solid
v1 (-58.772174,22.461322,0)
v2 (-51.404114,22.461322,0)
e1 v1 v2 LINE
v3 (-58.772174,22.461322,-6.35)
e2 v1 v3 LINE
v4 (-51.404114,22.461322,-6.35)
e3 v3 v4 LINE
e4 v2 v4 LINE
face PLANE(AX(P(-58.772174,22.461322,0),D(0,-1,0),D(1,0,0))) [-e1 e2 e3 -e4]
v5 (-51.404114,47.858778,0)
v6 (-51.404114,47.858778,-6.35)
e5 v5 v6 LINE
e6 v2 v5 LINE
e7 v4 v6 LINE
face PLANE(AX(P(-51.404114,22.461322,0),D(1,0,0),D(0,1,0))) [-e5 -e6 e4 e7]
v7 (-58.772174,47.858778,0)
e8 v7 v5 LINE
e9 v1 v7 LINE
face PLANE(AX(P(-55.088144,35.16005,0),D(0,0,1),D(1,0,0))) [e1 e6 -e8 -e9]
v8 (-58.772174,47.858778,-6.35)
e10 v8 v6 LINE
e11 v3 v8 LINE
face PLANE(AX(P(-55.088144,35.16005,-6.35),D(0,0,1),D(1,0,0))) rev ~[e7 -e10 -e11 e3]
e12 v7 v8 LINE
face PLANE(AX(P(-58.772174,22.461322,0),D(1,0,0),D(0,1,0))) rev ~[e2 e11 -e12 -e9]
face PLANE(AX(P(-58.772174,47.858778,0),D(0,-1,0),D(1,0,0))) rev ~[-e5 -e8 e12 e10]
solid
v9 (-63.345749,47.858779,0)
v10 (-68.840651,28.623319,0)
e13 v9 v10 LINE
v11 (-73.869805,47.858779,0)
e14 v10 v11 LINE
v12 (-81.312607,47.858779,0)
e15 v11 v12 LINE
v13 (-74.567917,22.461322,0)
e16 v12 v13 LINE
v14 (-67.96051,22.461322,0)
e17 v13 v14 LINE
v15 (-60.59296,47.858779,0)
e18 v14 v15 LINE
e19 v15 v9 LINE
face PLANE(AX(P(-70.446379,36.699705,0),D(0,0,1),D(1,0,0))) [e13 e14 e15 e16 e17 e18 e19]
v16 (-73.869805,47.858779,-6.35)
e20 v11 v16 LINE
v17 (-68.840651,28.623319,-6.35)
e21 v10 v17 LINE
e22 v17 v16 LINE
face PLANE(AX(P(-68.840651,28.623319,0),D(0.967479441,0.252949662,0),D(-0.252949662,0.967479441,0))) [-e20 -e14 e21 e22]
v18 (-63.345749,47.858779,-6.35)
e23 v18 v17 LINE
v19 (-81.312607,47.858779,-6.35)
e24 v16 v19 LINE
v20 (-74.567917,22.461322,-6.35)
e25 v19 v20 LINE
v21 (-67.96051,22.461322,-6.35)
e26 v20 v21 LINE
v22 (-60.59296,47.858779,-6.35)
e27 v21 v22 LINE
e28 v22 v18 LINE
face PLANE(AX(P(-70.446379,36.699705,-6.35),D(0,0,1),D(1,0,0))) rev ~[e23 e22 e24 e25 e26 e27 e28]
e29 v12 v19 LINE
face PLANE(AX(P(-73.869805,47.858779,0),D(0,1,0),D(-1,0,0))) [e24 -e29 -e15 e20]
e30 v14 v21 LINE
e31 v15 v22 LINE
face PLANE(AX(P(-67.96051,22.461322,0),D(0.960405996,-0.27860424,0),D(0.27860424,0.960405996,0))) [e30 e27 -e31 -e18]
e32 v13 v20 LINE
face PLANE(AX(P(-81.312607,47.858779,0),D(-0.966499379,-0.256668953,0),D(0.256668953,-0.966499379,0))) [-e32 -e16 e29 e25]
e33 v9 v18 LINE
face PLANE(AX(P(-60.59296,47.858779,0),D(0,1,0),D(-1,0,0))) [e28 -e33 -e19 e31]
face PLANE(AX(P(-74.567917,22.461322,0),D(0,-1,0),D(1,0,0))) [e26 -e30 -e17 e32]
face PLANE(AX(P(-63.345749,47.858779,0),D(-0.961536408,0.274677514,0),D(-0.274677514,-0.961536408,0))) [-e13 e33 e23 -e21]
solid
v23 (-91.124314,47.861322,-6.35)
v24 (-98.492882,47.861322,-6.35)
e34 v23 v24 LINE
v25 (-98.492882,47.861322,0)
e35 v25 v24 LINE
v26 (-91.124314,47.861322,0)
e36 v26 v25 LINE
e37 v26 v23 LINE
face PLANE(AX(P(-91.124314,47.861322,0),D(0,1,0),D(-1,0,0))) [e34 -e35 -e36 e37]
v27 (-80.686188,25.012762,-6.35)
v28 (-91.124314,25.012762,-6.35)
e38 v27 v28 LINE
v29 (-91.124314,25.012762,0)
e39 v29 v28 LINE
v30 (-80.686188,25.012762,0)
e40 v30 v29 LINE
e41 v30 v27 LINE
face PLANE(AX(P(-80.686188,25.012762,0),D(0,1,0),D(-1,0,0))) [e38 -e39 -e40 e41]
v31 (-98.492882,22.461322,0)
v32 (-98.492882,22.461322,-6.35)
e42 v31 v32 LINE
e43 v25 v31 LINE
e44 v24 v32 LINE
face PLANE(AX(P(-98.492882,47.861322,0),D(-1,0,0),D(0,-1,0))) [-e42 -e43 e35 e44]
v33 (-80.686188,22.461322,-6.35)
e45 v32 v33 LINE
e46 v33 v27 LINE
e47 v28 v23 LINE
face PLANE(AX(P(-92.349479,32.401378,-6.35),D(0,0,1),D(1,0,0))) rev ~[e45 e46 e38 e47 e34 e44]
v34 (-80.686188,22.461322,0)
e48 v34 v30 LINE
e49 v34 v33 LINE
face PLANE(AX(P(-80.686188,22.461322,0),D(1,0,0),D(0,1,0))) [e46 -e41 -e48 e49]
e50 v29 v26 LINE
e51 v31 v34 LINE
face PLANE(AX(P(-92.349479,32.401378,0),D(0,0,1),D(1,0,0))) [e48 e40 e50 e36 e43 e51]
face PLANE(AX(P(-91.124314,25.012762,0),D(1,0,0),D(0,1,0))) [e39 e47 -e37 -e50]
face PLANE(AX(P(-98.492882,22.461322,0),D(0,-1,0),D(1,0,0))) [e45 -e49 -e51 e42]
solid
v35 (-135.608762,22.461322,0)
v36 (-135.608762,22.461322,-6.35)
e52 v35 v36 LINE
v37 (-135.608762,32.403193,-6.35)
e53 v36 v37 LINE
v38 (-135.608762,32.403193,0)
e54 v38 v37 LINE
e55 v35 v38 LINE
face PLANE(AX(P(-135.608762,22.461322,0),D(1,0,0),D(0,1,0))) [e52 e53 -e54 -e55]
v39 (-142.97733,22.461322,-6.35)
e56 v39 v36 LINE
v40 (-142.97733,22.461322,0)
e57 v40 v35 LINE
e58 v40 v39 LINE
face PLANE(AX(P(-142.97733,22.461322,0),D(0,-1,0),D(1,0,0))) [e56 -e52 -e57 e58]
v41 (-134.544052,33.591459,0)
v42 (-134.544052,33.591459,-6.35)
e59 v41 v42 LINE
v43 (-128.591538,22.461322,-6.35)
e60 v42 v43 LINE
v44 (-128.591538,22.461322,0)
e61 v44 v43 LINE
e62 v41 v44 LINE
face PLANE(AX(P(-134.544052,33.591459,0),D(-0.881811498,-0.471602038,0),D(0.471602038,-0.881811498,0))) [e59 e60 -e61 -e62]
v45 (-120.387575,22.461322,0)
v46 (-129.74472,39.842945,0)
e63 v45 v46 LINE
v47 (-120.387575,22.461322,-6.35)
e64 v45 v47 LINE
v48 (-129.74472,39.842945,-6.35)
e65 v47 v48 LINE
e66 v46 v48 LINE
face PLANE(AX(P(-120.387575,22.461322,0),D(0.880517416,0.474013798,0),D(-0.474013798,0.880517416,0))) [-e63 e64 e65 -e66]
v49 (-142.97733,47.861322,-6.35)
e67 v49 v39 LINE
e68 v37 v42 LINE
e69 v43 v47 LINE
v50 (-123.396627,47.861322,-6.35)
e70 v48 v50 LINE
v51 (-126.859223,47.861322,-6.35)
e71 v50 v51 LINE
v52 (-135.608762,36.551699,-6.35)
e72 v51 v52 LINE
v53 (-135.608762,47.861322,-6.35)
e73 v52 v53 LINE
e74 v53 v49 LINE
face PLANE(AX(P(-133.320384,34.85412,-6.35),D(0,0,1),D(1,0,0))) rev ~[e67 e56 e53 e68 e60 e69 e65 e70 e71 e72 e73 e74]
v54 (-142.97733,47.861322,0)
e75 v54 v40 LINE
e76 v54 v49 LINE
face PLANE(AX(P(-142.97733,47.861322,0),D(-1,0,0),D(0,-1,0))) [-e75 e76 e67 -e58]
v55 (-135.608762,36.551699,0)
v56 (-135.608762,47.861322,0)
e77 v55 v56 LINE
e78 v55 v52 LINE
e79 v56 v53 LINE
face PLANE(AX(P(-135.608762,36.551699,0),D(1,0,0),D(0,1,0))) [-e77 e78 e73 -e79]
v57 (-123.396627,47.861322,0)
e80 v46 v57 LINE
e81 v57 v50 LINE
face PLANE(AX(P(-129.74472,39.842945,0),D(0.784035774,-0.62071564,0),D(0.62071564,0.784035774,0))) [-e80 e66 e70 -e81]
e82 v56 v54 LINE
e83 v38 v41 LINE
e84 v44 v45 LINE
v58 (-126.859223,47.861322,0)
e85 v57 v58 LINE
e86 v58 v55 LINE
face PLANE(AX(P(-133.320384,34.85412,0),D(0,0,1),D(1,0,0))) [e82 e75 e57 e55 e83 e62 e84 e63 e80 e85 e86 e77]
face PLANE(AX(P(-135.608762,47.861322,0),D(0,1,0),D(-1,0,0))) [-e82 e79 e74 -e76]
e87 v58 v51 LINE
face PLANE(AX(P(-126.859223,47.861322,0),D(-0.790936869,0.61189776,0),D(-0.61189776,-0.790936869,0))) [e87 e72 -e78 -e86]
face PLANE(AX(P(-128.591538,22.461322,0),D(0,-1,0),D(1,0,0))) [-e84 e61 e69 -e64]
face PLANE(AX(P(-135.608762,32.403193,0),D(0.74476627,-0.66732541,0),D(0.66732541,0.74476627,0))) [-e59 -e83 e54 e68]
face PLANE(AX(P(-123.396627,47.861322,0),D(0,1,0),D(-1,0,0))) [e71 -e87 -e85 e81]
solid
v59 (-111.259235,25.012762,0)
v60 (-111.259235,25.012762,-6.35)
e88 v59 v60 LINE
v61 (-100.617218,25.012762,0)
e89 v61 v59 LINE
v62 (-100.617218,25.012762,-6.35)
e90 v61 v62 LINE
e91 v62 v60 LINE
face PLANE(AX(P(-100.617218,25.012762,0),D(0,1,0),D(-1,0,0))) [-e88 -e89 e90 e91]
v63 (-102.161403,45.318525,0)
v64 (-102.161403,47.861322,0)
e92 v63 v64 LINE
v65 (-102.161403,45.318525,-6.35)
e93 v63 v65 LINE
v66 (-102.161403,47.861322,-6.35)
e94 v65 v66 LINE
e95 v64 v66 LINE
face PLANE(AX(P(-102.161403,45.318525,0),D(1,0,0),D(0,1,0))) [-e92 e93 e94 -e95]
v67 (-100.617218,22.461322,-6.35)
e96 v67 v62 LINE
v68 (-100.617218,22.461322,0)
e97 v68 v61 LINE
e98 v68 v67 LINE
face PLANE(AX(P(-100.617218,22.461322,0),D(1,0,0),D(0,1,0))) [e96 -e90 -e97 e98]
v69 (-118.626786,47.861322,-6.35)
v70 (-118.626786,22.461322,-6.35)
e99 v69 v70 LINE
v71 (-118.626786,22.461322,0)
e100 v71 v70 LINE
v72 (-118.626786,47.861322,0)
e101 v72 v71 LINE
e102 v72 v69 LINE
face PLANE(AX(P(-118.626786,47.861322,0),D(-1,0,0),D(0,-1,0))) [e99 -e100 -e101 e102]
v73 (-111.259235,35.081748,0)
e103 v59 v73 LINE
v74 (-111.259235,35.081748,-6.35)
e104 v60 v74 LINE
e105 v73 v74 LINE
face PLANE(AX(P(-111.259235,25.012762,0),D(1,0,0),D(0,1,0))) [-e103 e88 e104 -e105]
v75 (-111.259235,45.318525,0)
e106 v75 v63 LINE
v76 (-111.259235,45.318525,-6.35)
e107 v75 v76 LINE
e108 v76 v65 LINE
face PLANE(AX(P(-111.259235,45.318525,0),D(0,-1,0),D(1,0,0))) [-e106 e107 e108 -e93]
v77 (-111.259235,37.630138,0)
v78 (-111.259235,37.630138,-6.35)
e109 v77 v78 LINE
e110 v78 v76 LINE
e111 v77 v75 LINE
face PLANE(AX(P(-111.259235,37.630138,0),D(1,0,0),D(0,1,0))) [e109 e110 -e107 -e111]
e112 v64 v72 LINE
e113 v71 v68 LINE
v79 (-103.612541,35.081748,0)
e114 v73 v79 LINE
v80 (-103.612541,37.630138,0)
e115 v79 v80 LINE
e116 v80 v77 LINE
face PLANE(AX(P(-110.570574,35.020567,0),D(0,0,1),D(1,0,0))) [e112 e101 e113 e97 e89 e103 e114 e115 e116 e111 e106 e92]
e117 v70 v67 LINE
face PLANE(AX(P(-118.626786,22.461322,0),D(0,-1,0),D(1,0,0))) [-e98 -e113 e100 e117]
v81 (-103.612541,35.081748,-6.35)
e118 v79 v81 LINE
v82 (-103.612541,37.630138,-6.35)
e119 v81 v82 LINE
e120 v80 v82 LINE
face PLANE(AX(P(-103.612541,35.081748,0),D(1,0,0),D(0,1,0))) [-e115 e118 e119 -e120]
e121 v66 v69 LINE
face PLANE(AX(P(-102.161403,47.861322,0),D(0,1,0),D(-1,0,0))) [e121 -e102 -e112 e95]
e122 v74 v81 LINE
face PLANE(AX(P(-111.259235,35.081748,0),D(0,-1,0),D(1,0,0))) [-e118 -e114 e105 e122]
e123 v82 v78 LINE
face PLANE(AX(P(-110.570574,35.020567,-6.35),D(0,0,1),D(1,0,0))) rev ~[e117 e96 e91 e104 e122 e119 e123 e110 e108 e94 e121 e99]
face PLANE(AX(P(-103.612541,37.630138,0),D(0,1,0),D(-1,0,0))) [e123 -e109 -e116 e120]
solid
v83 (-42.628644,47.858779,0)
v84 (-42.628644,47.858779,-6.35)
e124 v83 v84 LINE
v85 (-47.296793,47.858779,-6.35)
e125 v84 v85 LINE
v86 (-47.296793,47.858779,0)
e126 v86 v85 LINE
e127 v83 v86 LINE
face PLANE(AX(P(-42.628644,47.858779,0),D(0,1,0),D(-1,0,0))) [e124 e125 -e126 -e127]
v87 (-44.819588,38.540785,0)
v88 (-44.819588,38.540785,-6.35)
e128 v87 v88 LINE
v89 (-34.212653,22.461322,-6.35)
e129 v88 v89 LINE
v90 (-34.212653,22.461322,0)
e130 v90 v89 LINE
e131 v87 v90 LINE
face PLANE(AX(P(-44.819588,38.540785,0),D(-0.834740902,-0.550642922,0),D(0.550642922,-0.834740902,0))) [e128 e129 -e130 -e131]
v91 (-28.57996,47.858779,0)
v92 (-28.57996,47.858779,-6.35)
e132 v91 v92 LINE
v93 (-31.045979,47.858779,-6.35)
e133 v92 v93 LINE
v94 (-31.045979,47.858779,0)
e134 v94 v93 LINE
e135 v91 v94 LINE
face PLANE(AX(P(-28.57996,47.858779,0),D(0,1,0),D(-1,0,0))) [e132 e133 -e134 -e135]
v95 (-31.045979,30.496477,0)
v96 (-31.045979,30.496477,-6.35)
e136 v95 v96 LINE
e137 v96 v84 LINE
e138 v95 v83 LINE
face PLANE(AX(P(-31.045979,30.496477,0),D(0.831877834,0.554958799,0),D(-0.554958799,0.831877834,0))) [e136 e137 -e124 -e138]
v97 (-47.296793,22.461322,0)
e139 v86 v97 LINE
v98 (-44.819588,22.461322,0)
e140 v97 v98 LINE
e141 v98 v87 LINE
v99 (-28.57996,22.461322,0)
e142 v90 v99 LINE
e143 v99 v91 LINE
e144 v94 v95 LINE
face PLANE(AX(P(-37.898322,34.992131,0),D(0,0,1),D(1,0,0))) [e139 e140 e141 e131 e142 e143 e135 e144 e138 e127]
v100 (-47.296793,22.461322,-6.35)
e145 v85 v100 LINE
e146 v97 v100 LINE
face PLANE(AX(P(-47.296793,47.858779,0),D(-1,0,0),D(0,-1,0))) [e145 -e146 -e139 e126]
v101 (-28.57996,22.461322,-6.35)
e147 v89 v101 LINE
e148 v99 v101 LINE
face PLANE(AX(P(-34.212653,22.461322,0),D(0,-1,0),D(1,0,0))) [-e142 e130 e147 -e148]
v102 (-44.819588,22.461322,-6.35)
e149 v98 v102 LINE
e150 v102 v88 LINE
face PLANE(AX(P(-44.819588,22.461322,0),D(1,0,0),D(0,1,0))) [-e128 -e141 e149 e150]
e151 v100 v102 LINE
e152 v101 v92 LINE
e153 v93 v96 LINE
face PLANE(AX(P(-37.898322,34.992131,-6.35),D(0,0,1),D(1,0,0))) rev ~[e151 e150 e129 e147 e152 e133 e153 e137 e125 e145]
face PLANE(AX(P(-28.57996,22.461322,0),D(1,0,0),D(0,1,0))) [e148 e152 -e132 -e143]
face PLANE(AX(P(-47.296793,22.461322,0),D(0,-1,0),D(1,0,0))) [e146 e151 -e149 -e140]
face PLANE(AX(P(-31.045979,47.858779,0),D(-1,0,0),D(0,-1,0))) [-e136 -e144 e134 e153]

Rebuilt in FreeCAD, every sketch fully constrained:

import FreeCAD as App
import Part
import Sketcher

V = App.Vector
Q = App.Units.Quantity

doc = App.newDocument("Part")
body = doc.addObject("PartDesign::Body", "Body")
body.AllowCompound = True

# Sketch on XY plane
sketch1 = body.newObject("Sketcher::SketchObject", "Sketch")
sketch1.AttachmentSupport = (doc.getObject("XY_Plane"), [""])
sketch1.MapMode = "FlatFace"
sketch1.addGeometry([
    Part.LineSegment(V(-135.6, 47.9, 0), V(-143, 47.9, 0)),  # 0
    Part.LineSegment(V(-143, 47.9, 0), V(-143, 22.5, 0)),  # 1
    Part.LineSegment(V(-143, 22.5, 0), V(-135.6, 22.5, 0)),  # 2
    Part.LineSegment(V(-135.6, 22.5, 0), V(-135.6, 32.4, 0)),  # 3
    Part.LineSegment(V(-135.6, 32.4, 0), V(-134.5, 33.6, 0)),  # 4
    Part.LineSegment(V(-134.5, 33.6, 0), V(-128.6, 22.5, 0)),  # 5
    Part.LineSegment(V(-128.6, 22.5, 0), V(-120.4, 22.5, 0)),  # 6
    Part.LineSegment(V(-120.4, 22.5, 0), V(-129.7, 39.8, 0)),  # 7
    Part.LineSegment(V(-129.7, 39.8, 0), V(-123.4, 47.9, 0)),  # 8
    Part.LineSegment(V(-123.4, 47.9, 0), V(-126.9, 47.9, 0)),  # 9
    Part.LineSegment(V(-126.9, 47.9, 0), V(-135.6, 36.6, 0)),  # 10
    Part.LineSegment(V(-135.6, 36.6, 0), V(-135.6, 47.9, 0)),  # 11
    Part.LineSegment(V(-102.2, 47.9, 0), V(-118.6, 47.9, 0)),  # 12
    Part.LineSegment(V(-118.6, 47.9, 0), V(-118.6, 22.5, 0)),  # 13
    Part.LineSegment(V(-118.6, 22.5, 0), V(-100.6, 22.5, 0)),  # 14
    Part.LineSegment(V(-100.6, 22.5, 0), V(-100.6, 25, 0)),  # 15
    Part.LineSegment(V(-100.6, 25, 0), V(-111.3, 25, 0)),  # 16
    Part.LineSegment(V(-111.3, 25, 0), V(-111.3, 35.1, 0)),  # 17
    Part.LineSegment(V(-111.3, 35.1, 0), V(-103.6, 35.1, 0)),  # 18
    Part.LineSegment(V(-103.6, 35.1, 0), V(-103.6, 37.6, 0)),  # 19
    Part.LineSegment(V(-103.6, 37.6, 0), V(-111.3, 37.6, 0)),  # 20
    Part.LineSegment(V(-111.3, 37.6, 0), V(-111.3, 45.3, 0)),  # 21
    Part.LineSegment(V(-111.3, 45.3, 0), V(-102.2, 45.3, 0)),  # 22
    Part.LineSegment(V(-102.2, 45.3, 0), V(-102.2, 47.9, 0)),  # 23
    Part.LineSegment(V(-91.1, 47.9, 0), V(-98.5, 47.9, 0)),  # 24
    Part.LineSegment(V(-98.5, 47.9, 0), V(-98.5, 22.5, 0)),  # 25
    Part.LineSegment(V(-98.5, 22.5, 0), V(-80.7, 22.5, 0)),  # 26
    Part.LineSegment(V(-80.7, 22.5, 0), V(-80.7, 25, 0)),  # 27
    Part.LineSegment(V(-80.7, 25, 0), V(-91.1, 25, 0)),  # 28
    Part.LineSegment(V(-91.1, 25, 0), V(-91.1, 47.9, 0)),  # 29
    Part.LineSegment(V(-58.8, 47.9, 0), V(-58.8, 22.5, 0)),  # 30
    Part.LineSegment(V(-58.8, 22.5, 0), V(-51.4, 22.5, 0)),  # 31
    Part.LineSegment(V(-51.4, 22.5, 0), V(-51.4, 47.9, 0)),  # 32
    Part.LineSegment(V(-51.4, 47.9, 0), V(-58.8, 47.9, 0)),  # 33
    Part.LineSegment(V(-42.6, 47.9, 0), V(-47.3, 47.9, 0)),  # 34
    Part.LineSegment(V(-47.3, 47.9, 0), V(-47.3, 22.5, 0)),  # 35
    Part.LineSegment(V(-47.3, 22.5, 0), V(-44.8, 22.5, 0)),  # 36
    Part.LineSegment(V(-44.8, 22.5, 0), V(-44.8, 38.5, 0)),  # 37
    Part.LineSegment(V(-44.8, 38.5, 0), V(-34.2, 22.5, 0)),  # 38
    Part.LineSegment(V(-34.2, 22.5, 0), V(-28.6, 22.5, 0)),  # 39
    Part.LineSegment(V(-28.6, 22.5, 0), V(-28.6, 47.9, 0)),  # 40
    Part.LineSegment(V(-28.6, 47.9, 0), V(-31, 47.9, 0)),  # 41
    Part.LineSegment(V(-31, 47.9, 0), V(-31, 30.5, 0)),  # 42
    Part.LineSegment(V(-31, 30.5, 0), V(-42.6, 47.9, 0)),  # 43
    Part.LineSegment(V(-73.9, 47.9, 0), V(-81.3, 47.9, 0)),  # 44
    Part.LineSegment(V(-81.3, 47.9, 0), V(-74.6, 22.5, 0)),  # 45
    Part.LineSegment(V(-74.6, 22.5, 0), V(-68, 22.5, 0)),  # 46
    Part.LineSegment(V(-68, 22.5, 0), V(-60.6, 47.9, 0)),  # 47
    Part.LineSegment(V(-60.6, 47.9, 0), V(-63.3, 47.9, 0)),  # 48
    Part.LineSegment(V(-63.3, 47.9, 0), V(-68.8, 28.6, 0)),  # 49
    Part.LineSegment(V(-68.8, 28.6, 0), V(-73.9, 47.9, 0)),  # 50
], False)
sketch1.addConstraint([
    Sketcher.Constraint("Coincident", 0, 2, 1, 1),
    Sketcher.Constraint("Coincident", 1, 2, 2, 1),
    Sketcher.Constraint("Coincident", 2, 2, 3, 1),
    Sketcher.Constraint("Coincident", 3, 2, 4, 1),
    Sketcher.Constraint("Coincident", 4, 2, 5, 1),
    Sketcher.Constraint("Coincident", 5, 2, 6, 1),
    Sketcher.Constraint("Coincident", 6, 2, 7, 1),
    Sketcher.Constraint("Coincident", 7, 2, 8, 1),
    Sketcher.Constraint("Coincident", 8, 2, 9, 1),
    Sketcher.Constraint("Coincident", 9, 2, 10, 1),
    Sketcher.Constraint("Coincident", 10, 2, 11, 1),
    Sketcher.Constraint("Coincident", 11, 2, 0, 1),
    Sketcher.Constraint("Coincident", 12, 2, 13, 1),
    Sketcher.Constraint("Coincident", 13, 2, 14, 1),
    Sketcher.Constraint("Coincident", 14, 2, 15, 1),
    Sketcher.Constraint("Coincident", 15, 2, 16, 1),
    Sketcher.Constraint("Coincident", 16, 2, 17, 1),
    Sketcher.Constraint("Coincident", 17, 2, 18, 1),
    Sketcher.Constraint("Coincident", 18, 2, 19, 1),
    Sketcher.Constraint("Coincident", 19, 2, 20, 1),
    Sketcher.Constraint("Coincident", 20, 2, 21, 1),
    Sketcher.Constraint("Coincident", 21, 2, 22, 1),
    Sketcher.Constraint("Coincident", 22, 2, 23, 1),
    Sketcher.Constraint("Coincident", 23, 2, 12, 1),
    Sketcher.Constraint("Coincident", 24, 2, 25, 1),
    Sketcher.Constraint("Coincident", 25, 2, 26, 1),
    Sketcher.Constraint("Coincident", 26, 2, 27, 1),
    Sketcher.Constraint("Coincident", 27, 2, 28, 1),
    Sketcher.Constraint("Coincident", 28, 2, 29, 1),
    Sketcher.Constraint("Coincident", 29, 2, 24, 1),
    Sketcher.Constraint("Coincident", 30, 2, 31, 1),
    Sketcher.Constraint("Coincident", 31, 2, 32, 1),
    Sketcher.Constraint("Coincident", 32, 2, 33, 1),
    Sketcher.Constraint("Coincident", 33, 2, 30, 1),
    Sketcher.Constraint("Coincident", 34, 2, 35, 1),
    Sketcher.Constraint("Coincident", 35, 2, 36, 1),
    Sketcher.Constraint("Coincident", 36, 2, 37, 1),
    Sketcher.Constraint("Coincident", 37, 2, 38, 1),
    Sketcher.Constraint("Coincident", 38, 2, 39, 1),
    Sketcher.Constraint("Coincident", 39, 2, 40, 1),
    Sketcher.Constraint("Coincident", 40, 2, 41, 1),
    Sketcher.Constraint("Coincident", 41, 2, 42, 1),
    Sketcher.Constraint("Coincident", 42, 2, 43, 1),
    Sketcher.Constraint("Coincident", 43, 2, 34, 1),
    Sketcher.Constraint("Coincident", 44, 2, 45, 1),
    Sketcher.Constraint("Coincident", 45, 2, 46, 1),
    Sketcher.Constraint("Coincident", 46, 2, 47, 1),
    Sketcher.Constraint("Coincident", 47, 2, 48, 1),
    Sketcher.Constraint("Coincident", 48, 2, 49, 1),
    Sketcher.Constraint("Coincident", 49, 2, 50, 1),
    Sketcher.Constraint("Coincident", 50, 2, 44, 1),
    Sketcher.Constraint("Horizontal", 0),
    Sketcher.Constraint("Vertical", 1),
    Sketcher.Constraint("Horizontal", 2),
    Sketcher.Constraint("Vertical", 3),
    Sketcher.Constraint("Horizontal", 6),
    Sketcher.Constraint("Horizontal", 9),
    Sketcher.Constraint("Vertical", 11),
    Sketcher.Constraint("Horizontal", 12),
    Sketcher.Constraint("Vertical", 13),
    Sketcher.Constraint("Horizontal", 14),
    Sketcher.Constraint("Vertical", 15),
    Sketcher.Constraint("Horizontal", 16),
    Sketcher.Constraint("Vertical", 17),
    Sketcher.Constraint("Horizontal", 18),
    Sketcher.Constraint("Vertical", 19),
    Sketcher.Constraint("Horizontal", 20),
    Sketcher.Constraint("Vertical", 21),
    Sketcher.Constraint("Horizontal", 22),
    Sketcher.Constraint("Vertical", 23),
    Sketcher.Constraint("Horizontal", 24),
    Sketcher.Constraint("Vertical", 25),
    Sketcher.Constraint("Horizontal", 26),
    Sketcher.Constraint("Vertical", 27),
    Sketcher.Constraint("Horizontal", 28),
    Sketcher.Constraint("Vertical", 29),
    Sketcher.Constraint("Vertical", 30),
    Sketcher.Constraint("Horizontal", 31),
    Sketcher.Constraint("Vertical", 32),
    Sketcher.Constraint("Horizontal", 33),
    Sketcher.Constraint("Horizontal", 34),
    Sketcher.Constraint("Vertical", 35),
    Sketcher.Constraint("Horizontal", 36),
    Sketcher.Constraint("Vertical", 37),
    Sketcher.Constraint("Horizontal", 39),
    Sketcher.Constraint("Vertical", 40),
    Sketcher.Constraint("Horizontal", 41),
    Sketcher.Constraint("Vertical", 42),
    Sketcher.Constraint("Horizontal", 44),
    Sketcher.Constraint("Horizontal", 46),
    Sketcher.Constraint("Horizontal", 48),
    Sketcher.Constraint("Horizontal", 2, 2, 5, 2),
    Sketcher.Constraint("Horizontal", 0, 2, 8, 2),
    Sketcher.Constraint("Horizontal", 11, 2, 12, 2),
    Sketcher.Constraint("Horizontal", 6, 2, 13, 2),
    Sketcher.Constraint("Horizontal", 23, 2, 24, 2),
    Sketcher.Constraint("Horizontal", 14, 2, 25, 2),
    Sketcher.Constraint("Horizontal", 16, 2, 27, 2),
    Sketcher.Constraint("Horizontal", 26, 2, 30, 2),
    Sketcher.Constraint("Horizontal", 33, 2, 34, 2),
    Sketcher.Constraint("Horizontal", 31, 2, 35, 2),
    Sketcher.Constraint("Horizontal", 36, 2, 38, 2),
    Sketcher.Constraint("Horizontal", 34, 2, 40, 2),
    Sketcher.Constraint("Horizontal", 43, 2, 44, 2),
    Sketcher.Constraint("Horizontal", 39, 2, 45, 2),
    Sketcher.Constraint("Horizontal", 44, 2, 47, 2),
    Sketcher.Constraint("Vertical", 3, 2, 10, 2),
    Sketcher.Constraint("Vertical", 17, 2, 20, 2),
    Sketcher.Constraint("Equal", 2, 24),
    Sketcher.Constraint("DistanceY", 1, 2, 1, 1, Q("1 in")),
    Sketcher.Constraint("DistanceY", 30, 2, 30, 1, Q("0.9998999 in")),
    Sketcher.Constraint("DistanceY", 42, 2, 42, 1, 17.362302),
    Sketcher.Constraint("Distance", 5, 12.621901),
    Sketcher.Constraint("Distance", 47, 26.444501),
    Sketcher.Constraint("DistanceX", 14, 1, 14, 2, 18.009568),
    Sketcher.Constraint("DistanceX", 22, 1, 22, 2, 9.097832),
    Sketcher.Constraint("DistanceX", 31, 1, 31, 2, 7.368059),
    Sketcher.Constraint("DistanceX", 34, 2, 34, 1, 4.668149),
    Sketcher.Constraint("DistanceX", 41, 2, 41, 1, 2.466019),
    Sketcher.Constraint("DistanceX", 48, 2, 48, 1, 2.752789),
    Sketcher.Constraint("DistanceY", 3, 1, 3, 2, 9.941871),
    Sketcher.Constraint("DistanceY", 15, 1, 15, 2, 2.55144),
    Sketcher.Constraint("DistanceY", 19, 1, 19, 2, 2.54839),
    Sketcher.Constraint("DistanceY", -1, 1, 10, 2, 36.551699),
    Sketcher.Constraint("DistanceX", 28, 2, 31, 2, 39.720199),
    Sketcher.Constraint("Distance", 4, 1.595488),
    Sketcher.Constraint("Distance", 10, 14.299021),
    Sketcher.Constraint("Distance", 38, 19.262819),
    Sketcher.Constraint("Distance", 45, 26.277779),
    Sketcher.Constraint("Distance", 49, 20.004921),
    Sketcher.Constraint("DistanceX", 0, 2, 0, 1, 7.368568),
    Sketcher.Constraint("DistanceX", 6, 1, 6, 2, 8.203963),
    Sketcher.Constraint("DistanceX", 9, 2, 9, 1, 3.462596),
    Sketcher.Constraint("DistanceX", 12, 2, 12, 1, 16.465383),
    Sketcher.Constraint("DistanceX", 18, 1, 18, 2, 7.646694),
    Sketcher.Constraint("DistanceX", 26, 1, 26, 2, 17.806694),
    Sketcher.Constraint("DistanceX", 36, 1, 36, 2, 2.477205),
    Sketcher.Constraint("DistanceX", 39, 1, 39, 2, 5.632693),
    Sketcher.Constraint("DistanceX", 44, 2, 44, 1, 7.442802),
    Sketcher.Constraint("DistanceX", 46, 1, 46, 2, 6.607407),
    Sketcher.Constraint("DistanceY", 11, 1, 11, 2, 11.309623),
    Sketcher.Constraint("DistanceY", 17, 1, 17, 2, 10.068986),
    Sketcher.Constraint("DistanceY", 21, 1, 21, 2, 7.688387),
    Sketcher.Constraint("DistanceY", 37, 1, 37, 2, 16.079463),
    Sketcher.Constraint("DistanceX", 0, 2, -1, 1, 142.97733),
    Sketcher.Constraint("DistanceX", 4, 2, -1, 1, 134.544052),
    Sketcher.Constraint("DistanceX", 7, 2, -1, 1, 129.74472),
    Sketcher.Constraint("DistanceX", 18, 2, -1, 1, 103.612541),
    Sketcher.Constraint("DistanceX", 24, 2, -1, 1, 98.492882),
    Sketcher.Constraint("DistanceX", 36, 2, -1, 1, 44.819588),
    Sketcher.Constraint("DistanceX", 46, 2, -1, 1, 67.96051),
    Sketcher.Constraint("DistanceX", 49, 2, -1, 1, 68.840651),
    Sketcher.Constraint("DistanceY", 3, 2, 7, 2, 7.439752),
])
pad1 = body.newObject("PartDesign::Pad", "Pad")
pad1.Profile = sketch1
pad1.Length = Q("0.25 in")
pad1.Reversed = True

doc.recompute()
